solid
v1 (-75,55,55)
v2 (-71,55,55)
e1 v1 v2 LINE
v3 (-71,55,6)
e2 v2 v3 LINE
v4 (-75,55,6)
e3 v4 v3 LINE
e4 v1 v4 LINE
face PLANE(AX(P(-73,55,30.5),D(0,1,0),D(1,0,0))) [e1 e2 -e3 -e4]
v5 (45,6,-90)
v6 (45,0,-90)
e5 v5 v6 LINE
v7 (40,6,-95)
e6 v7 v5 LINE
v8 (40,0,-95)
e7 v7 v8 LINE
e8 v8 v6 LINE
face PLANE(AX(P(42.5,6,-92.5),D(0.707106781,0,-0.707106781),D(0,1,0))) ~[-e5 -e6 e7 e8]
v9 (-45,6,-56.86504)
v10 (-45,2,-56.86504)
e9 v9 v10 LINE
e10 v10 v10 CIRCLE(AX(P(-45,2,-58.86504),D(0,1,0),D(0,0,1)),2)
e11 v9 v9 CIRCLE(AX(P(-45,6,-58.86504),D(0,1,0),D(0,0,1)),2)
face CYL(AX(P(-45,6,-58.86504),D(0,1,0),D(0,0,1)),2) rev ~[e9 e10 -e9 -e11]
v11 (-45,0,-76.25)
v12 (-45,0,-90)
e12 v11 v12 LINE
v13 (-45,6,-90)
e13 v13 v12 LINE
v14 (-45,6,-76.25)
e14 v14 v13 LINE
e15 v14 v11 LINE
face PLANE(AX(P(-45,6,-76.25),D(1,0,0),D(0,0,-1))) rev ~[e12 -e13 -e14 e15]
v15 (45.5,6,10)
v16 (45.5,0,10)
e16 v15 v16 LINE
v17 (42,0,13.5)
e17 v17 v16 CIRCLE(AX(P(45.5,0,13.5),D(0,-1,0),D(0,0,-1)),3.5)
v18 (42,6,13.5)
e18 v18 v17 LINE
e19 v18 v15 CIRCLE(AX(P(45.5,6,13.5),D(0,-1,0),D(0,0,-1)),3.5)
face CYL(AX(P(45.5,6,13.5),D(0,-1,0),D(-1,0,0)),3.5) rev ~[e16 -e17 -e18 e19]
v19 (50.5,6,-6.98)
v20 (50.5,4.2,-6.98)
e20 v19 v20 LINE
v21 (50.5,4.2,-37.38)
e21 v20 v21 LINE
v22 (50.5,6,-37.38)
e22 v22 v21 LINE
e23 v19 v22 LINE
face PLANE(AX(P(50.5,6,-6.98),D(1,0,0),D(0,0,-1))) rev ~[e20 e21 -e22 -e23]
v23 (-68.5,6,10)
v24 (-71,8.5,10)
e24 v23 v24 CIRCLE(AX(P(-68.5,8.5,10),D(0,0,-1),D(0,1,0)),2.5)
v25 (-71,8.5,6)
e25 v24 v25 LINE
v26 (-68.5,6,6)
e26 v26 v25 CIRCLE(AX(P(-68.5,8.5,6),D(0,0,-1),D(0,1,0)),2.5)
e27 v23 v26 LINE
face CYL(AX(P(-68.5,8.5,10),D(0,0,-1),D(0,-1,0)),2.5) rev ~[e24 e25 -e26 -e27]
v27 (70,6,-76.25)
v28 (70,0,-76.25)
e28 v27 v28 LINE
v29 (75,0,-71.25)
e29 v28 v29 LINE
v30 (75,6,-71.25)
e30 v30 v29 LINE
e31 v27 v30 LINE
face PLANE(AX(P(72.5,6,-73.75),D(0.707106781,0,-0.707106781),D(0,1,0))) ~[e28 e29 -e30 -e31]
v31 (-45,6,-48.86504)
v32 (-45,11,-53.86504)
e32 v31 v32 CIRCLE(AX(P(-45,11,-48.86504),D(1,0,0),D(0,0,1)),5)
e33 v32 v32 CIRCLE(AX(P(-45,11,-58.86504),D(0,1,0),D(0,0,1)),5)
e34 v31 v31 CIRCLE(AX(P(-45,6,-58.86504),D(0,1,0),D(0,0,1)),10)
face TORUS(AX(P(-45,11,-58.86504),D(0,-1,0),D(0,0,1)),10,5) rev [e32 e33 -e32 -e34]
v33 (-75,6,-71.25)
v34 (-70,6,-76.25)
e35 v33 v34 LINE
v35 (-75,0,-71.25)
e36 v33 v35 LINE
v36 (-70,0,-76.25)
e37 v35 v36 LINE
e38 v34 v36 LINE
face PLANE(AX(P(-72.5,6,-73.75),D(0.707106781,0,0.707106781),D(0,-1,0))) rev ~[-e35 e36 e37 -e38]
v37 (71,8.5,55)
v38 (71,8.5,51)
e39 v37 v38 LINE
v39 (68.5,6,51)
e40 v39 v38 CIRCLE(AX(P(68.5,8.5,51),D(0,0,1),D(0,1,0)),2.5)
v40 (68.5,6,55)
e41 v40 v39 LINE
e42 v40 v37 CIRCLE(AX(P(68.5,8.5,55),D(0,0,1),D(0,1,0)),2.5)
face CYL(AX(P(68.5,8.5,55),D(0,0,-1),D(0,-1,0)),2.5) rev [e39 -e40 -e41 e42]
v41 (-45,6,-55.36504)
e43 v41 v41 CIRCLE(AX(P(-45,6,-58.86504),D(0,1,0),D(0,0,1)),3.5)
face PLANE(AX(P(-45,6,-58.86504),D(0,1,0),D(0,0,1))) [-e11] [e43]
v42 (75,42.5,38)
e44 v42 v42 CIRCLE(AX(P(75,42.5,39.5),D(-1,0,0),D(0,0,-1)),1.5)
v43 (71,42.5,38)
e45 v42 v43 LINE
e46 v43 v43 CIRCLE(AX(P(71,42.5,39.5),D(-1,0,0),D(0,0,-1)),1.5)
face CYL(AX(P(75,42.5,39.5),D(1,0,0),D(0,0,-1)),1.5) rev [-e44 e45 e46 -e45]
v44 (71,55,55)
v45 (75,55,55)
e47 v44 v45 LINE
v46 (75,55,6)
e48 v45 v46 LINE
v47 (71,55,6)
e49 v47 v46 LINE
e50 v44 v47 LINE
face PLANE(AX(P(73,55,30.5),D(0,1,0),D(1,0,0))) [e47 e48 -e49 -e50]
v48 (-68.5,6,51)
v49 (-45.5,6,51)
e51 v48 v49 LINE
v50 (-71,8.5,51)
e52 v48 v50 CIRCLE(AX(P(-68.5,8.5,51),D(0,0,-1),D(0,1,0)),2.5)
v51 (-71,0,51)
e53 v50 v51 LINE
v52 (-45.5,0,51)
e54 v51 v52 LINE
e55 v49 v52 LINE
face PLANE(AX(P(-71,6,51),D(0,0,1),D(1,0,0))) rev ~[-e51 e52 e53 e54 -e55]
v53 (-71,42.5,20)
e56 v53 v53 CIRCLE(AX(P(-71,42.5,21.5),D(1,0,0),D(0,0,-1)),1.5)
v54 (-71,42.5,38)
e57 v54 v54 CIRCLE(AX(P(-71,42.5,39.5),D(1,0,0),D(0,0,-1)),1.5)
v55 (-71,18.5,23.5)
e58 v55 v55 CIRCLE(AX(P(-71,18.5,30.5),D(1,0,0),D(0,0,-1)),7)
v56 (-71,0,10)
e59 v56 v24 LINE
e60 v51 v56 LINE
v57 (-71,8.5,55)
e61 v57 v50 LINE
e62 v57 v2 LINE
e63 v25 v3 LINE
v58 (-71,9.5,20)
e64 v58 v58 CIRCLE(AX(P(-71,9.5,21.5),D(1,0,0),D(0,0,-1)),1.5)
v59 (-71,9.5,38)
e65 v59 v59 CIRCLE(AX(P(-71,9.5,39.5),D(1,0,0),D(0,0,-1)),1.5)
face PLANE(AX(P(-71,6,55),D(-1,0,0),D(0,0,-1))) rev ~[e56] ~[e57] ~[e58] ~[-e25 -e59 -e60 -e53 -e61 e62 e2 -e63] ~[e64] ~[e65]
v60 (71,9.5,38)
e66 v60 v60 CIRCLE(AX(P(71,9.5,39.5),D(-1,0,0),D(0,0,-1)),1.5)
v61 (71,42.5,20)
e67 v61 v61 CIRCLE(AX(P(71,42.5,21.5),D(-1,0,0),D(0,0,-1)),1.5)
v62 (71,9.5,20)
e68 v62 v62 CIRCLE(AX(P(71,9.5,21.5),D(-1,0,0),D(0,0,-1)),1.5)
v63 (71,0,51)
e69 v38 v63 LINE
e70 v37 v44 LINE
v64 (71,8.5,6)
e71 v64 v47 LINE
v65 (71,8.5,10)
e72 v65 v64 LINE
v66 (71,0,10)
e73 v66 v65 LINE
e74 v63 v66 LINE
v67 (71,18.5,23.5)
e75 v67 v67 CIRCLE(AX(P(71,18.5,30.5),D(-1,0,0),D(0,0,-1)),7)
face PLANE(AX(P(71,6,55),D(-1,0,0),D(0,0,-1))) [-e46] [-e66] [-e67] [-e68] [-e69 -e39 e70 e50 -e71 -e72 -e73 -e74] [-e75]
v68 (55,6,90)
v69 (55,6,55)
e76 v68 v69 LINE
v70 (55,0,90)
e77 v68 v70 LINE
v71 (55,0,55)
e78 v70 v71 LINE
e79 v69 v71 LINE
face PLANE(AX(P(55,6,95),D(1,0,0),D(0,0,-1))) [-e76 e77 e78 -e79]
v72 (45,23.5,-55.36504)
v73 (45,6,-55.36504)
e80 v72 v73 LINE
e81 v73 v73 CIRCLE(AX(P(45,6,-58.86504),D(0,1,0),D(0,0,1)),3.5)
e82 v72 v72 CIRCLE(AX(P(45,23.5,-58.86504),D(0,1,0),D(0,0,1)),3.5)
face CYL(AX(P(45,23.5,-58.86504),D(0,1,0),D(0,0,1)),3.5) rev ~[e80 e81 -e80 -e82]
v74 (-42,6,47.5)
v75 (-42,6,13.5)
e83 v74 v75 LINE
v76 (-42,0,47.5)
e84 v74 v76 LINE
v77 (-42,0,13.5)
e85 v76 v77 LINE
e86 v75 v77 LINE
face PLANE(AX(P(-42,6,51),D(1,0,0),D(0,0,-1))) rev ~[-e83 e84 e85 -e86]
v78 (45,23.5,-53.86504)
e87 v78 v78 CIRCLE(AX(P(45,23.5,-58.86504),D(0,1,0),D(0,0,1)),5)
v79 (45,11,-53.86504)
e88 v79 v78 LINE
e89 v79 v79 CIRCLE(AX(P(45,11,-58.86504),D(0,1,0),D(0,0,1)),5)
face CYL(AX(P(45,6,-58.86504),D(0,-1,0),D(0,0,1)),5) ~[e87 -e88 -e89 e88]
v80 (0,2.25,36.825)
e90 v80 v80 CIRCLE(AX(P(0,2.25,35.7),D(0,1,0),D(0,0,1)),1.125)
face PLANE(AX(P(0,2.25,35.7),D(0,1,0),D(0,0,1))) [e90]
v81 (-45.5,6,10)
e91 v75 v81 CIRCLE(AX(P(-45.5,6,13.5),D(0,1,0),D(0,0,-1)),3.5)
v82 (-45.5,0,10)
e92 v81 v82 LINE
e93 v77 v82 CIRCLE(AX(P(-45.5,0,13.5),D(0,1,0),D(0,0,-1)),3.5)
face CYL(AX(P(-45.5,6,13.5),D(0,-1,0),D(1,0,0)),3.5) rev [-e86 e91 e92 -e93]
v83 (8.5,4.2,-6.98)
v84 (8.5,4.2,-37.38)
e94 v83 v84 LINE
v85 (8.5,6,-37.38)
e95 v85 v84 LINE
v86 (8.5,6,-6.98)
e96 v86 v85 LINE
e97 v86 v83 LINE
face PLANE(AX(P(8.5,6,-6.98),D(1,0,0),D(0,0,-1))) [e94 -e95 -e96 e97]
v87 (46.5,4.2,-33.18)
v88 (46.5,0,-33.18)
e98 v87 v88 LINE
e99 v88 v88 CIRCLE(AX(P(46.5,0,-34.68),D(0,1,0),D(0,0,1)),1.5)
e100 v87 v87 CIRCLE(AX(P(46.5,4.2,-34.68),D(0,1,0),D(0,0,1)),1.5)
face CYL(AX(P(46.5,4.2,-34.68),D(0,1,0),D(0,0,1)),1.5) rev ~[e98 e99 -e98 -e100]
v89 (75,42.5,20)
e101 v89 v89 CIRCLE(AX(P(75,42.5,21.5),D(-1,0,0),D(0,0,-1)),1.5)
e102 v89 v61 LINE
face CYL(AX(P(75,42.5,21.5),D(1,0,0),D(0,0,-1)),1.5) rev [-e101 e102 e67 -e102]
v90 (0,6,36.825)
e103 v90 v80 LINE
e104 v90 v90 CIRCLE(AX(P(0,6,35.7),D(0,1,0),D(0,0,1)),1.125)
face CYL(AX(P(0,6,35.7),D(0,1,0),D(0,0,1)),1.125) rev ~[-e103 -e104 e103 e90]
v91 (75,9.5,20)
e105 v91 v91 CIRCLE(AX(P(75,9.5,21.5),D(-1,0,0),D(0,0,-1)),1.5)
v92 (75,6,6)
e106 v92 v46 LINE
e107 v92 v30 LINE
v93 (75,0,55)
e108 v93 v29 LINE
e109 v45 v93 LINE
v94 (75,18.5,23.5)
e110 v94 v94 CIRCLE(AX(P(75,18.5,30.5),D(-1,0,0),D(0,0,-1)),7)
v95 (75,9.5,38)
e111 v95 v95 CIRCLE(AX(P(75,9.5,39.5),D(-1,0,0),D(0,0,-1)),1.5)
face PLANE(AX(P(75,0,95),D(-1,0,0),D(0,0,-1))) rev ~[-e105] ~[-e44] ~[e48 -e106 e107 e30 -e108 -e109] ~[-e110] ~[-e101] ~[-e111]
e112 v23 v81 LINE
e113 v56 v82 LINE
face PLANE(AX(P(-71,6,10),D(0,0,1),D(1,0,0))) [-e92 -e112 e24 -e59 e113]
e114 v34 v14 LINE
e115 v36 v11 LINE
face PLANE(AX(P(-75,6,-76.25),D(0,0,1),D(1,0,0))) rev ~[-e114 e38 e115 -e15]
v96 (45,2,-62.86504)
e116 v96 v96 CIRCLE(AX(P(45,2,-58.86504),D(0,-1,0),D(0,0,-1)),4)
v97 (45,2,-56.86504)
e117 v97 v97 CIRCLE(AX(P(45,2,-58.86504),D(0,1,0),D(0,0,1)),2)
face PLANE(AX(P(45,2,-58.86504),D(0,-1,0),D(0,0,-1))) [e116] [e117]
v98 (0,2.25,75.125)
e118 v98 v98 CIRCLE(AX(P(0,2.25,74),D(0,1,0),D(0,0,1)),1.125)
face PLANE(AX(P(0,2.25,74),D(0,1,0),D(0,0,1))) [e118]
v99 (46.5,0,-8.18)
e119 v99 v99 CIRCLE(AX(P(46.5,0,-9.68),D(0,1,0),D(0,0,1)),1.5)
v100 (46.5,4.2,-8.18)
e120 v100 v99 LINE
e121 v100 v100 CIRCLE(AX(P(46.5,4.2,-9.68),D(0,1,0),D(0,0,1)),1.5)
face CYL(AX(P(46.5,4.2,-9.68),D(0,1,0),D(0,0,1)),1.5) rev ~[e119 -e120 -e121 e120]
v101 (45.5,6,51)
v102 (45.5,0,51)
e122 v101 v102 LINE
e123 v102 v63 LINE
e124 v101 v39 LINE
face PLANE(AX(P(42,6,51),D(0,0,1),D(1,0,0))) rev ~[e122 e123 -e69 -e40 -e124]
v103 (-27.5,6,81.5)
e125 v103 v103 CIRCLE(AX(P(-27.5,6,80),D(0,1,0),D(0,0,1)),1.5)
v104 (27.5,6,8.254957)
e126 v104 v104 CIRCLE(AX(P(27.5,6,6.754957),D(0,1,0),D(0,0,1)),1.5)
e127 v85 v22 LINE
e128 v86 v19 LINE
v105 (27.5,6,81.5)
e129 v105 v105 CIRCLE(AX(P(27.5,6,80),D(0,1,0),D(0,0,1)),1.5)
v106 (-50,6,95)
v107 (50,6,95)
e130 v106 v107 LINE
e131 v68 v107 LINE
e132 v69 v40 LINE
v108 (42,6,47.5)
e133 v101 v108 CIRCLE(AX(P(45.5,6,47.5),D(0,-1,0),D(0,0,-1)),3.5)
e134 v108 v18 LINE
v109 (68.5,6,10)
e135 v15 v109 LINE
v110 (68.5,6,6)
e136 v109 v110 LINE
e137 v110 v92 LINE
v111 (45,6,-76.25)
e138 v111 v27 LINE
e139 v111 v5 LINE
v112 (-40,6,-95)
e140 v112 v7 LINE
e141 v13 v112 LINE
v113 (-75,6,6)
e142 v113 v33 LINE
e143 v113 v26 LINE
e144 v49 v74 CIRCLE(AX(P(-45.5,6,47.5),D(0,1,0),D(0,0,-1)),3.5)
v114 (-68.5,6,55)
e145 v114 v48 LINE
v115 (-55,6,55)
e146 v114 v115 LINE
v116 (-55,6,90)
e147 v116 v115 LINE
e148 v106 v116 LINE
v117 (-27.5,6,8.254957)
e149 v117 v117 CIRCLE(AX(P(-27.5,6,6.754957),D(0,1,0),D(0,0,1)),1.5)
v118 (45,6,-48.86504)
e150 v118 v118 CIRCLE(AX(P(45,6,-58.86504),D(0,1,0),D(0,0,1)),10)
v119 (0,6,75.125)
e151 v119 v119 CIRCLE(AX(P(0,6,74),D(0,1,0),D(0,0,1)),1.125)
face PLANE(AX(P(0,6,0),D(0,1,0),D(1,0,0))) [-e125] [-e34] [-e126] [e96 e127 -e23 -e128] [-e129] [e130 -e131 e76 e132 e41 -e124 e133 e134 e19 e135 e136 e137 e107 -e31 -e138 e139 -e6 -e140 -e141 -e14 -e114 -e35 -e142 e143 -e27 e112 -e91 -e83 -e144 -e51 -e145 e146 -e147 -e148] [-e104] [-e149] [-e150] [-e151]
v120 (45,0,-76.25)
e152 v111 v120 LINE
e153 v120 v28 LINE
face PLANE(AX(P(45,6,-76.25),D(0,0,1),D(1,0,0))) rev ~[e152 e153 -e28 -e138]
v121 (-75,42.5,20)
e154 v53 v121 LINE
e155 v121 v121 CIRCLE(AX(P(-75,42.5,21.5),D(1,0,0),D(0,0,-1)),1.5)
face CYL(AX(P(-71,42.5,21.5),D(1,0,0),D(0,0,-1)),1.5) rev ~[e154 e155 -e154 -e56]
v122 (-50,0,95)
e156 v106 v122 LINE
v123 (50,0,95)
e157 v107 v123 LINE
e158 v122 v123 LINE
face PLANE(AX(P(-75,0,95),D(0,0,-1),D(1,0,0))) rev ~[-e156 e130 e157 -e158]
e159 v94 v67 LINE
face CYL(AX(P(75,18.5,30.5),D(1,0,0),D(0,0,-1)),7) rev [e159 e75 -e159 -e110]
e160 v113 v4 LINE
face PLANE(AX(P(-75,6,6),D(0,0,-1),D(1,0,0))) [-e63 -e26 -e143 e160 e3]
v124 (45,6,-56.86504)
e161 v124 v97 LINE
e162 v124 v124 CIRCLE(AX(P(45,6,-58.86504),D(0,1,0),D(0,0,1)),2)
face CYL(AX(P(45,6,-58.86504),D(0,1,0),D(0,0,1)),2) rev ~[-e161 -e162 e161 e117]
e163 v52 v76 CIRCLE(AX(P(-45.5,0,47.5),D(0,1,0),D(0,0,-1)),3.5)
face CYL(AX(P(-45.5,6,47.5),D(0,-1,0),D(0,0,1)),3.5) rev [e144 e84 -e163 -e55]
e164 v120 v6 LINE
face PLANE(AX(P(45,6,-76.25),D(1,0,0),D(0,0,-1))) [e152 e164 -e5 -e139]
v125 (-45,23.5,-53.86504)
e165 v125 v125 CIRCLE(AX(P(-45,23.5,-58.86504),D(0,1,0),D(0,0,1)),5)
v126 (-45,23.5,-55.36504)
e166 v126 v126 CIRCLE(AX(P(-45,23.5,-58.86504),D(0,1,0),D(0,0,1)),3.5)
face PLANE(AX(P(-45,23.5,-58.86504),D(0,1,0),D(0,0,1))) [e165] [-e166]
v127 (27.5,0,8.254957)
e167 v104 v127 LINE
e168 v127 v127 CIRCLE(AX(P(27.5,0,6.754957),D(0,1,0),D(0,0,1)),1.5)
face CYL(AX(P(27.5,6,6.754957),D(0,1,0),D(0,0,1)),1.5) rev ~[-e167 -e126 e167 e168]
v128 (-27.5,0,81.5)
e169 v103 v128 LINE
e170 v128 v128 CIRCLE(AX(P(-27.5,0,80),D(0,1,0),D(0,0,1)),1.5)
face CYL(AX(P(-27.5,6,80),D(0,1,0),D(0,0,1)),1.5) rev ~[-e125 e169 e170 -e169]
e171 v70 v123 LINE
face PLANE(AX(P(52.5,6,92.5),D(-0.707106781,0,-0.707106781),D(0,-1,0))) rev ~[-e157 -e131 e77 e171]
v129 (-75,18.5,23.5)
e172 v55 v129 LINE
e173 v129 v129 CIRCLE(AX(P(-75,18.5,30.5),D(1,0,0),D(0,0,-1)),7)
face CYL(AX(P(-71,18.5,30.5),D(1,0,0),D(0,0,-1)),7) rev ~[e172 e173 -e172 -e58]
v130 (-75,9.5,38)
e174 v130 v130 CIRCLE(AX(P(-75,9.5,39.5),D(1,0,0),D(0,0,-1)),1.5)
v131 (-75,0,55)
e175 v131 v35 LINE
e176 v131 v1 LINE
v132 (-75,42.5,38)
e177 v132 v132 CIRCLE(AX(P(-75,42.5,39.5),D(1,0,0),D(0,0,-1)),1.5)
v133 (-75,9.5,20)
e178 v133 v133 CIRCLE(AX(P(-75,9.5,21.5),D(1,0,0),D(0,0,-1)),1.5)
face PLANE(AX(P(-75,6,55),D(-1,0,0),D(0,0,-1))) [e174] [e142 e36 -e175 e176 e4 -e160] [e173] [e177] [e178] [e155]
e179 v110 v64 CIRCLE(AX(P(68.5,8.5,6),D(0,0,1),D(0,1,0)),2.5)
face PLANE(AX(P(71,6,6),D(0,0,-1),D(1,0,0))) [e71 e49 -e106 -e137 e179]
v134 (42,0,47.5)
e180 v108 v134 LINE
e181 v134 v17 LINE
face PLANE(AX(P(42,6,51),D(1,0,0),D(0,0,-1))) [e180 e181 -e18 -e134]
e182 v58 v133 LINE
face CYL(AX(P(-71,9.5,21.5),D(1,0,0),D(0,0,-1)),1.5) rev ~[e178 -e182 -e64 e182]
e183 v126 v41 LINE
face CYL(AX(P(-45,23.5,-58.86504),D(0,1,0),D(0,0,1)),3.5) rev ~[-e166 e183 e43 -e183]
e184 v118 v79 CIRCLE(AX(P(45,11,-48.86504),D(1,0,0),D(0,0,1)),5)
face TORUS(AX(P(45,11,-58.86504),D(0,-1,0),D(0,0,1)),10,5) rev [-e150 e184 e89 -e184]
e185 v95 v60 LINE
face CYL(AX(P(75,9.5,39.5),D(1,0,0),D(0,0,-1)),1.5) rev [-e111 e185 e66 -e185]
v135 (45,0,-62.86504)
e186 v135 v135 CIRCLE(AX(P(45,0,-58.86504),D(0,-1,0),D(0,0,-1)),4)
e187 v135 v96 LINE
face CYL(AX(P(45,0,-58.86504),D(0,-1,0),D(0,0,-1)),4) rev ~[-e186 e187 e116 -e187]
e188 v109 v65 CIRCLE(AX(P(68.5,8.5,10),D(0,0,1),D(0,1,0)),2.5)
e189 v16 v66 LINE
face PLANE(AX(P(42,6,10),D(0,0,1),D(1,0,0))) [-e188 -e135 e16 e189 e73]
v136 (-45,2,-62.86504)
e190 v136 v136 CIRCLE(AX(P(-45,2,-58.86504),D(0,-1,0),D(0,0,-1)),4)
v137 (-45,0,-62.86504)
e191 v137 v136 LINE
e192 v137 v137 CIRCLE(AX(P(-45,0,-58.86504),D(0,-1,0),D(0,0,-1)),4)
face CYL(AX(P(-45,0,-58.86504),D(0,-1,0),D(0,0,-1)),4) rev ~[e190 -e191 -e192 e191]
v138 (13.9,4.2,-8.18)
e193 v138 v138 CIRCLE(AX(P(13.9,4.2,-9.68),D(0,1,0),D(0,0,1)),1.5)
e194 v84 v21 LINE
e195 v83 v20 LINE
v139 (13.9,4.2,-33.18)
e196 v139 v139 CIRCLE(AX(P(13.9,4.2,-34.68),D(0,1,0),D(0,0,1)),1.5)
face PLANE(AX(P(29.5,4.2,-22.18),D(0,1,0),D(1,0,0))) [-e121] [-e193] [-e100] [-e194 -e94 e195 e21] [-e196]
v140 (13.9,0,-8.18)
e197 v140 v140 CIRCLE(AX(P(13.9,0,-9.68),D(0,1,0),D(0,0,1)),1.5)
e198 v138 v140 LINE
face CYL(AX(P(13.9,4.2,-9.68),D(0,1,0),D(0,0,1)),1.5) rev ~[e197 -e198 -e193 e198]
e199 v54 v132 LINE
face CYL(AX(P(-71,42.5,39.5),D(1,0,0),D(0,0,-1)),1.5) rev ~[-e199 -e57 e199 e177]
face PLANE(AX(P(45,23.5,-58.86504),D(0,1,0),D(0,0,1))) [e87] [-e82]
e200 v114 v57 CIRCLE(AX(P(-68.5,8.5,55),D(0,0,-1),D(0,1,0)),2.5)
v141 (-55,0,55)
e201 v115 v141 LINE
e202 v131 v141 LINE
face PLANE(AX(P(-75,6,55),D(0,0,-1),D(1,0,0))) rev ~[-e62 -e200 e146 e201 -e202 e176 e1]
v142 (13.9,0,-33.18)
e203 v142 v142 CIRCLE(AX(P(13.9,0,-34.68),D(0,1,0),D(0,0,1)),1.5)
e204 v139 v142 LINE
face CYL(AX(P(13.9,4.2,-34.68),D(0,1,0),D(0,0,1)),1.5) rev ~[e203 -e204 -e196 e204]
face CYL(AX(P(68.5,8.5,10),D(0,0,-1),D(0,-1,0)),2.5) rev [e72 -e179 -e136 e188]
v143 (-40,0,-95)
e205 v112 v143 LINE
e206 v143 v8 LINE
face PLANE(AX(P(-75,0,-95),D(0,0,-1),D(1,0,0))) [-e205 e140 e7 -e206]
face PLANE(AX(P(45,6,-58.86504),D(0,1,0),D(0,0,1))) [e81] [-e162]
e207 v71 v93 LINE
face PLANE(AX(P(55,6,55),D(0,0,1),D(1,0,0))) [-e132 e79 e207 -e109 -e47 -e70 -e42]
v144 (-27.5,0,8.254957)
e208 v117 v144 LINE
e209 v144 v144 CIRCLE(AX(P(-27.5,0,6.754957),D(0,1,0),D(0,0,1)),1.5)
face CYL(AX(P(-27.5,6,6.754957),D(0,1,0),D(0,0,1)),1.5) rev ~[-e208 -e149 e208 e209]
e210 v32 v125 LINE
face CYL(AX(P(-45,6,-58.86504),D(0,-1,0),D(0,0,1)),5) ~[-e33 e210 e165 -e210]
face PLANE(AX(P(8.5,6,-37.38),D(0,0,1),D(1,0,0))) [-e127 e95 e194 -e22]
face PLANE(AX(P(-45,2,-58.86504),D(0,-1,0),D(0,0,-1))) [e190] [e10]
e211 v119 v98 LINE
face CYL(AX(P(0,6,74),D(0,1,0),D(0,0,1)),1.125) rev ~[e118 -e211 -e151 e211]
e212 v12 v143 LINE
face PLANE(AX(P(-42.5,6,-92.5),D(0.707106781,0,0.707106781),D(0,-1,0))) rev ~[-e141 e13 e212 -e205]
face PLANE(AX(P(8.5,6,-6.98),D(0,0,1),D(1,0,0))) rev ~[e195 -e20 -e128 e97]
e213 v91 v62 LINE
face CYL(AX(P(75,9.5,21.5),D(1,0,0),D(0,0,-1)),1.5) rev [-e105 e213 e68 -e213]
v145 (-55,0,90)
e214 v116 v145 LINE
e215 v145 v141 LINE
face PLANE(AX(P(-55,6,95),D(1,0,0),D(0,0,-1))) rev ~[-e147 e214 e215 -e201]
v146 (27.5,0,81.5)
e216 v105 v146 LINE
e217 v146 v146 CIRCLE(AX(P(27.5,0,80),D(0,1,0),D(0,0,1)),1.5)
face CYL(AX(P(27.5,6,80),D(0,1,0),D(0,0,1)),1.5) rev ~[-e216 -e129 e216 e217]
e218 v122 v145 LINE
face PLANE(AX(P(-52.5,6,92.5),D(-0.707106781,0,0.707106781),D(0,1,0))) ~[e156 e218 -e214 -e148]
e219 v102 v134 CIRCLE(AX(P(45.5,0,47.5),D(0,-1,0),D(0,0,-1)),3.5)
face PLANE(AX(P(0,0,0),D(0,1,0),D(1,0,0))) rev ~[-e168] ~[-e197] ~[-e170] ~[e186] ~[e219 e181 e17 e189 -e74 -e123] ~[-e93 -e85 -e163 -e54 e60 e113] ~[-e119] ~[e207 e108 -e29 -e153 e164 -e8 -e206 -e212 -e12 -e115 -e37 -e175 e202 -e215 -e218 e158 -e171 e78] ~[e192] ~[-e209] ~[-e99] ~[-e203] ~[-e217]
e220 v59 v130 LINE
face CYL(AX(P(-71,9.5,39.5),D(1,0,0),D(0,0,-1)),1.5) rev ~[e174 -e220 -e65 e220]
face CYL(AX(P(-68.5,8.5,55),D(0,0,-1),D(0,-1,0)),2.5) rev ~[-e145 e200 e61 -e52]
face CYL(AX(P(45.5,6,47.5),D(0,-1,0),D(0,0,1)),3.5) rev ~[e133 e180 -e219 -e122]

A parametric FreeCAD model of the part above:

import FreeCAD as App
import Part
import Sketcher
from FreeCAD import Vector


def edges_at(feature, points):
    """Names of the edges that pass closest to the given points."""
    edges = feature.Shape.Edges
    near = lambda p: min(range(len(edges)), key=lambda i: edges[i].distToShape(Part.Vertex(*p))[0])
    return sorted({f"Edge{near(p) + 1}" for p in points})

doc = App.newDocument("Part")
body = doc.addObject("PartDesign::Body", "Body")

# Sketch on XZ plane
sketch1 = body.newObject("Sketcher::SketchObject", "Sketch")
sketch1.AttachmentSupport = (doc.getObject("XZ_Plane"), [""])
sketch1.MapMode = "FlatFace"
sketch1.addGeometry(Part.LineSegment(Vector(-75, -95, 0), Vector(-75, 95, 0)), False)
sketch1.addGeometry(Part.LineSegment(Vector(-75, 95, 0), Vector(75, 95, 0)), False)
sketch1.addGeometry(Part.LineSegment(Vector(75, 95, 0), Vector(75, -95, 0)), False)
sketch1.addGeometry(Part.LineSegment(Vector(75, -95, 0), Vector(-75, -95, 0)), False)
sketch1.addConstraint(Sketcher.Constraint("Coincident", 0, 2, 1, 1))
sketch1.addConstraint(Sketcher.Constraint("Coincident", 1, 2, 2, 1))
sketch1.addConstraint(Sketcher.Constraint("Coincident", 2, 2, 3, 1))
sketch1.addConstraint(Sketcher.Constraint("Coincident", 3, 2, 0, 1))
sketch1.addConstraint(Sketcher.Constraint("Vertical", 0))
sketch1.addConstraint(Sketcher.Constraint("Horizontal", 1))
sketch1.addConstraint(Sketcher.Constraint("Vertical", 2))
sketch1.addConstraint(Sketcher.Constraint("Horizontal", 3))
sketch1.addConstraint(Sketcher.Constraint("Symmetric", 0, 2, 2, 2, -1, 1))
sketch1.addConstraint(Sketcher.Constraint("DistanceX", 1, 1, 1, 2, 150.0))
sketch1.addConstraint(Sketcher.Constraint("DistanceY", 0, 1, 0, 2, 190.0))
pad1 = body.newObject("PartDesign::Pad", "Pad")
pad1.Profile = sketch1
pad1.Length = 6
pad1.Reversed = True

# Sketch on XZ plane
sketch2 = body.newObject("Sketcher::SketchObject", "Sketch001")
sketch2.AttachmentSupport = (doc.getObject("XZ_Plane"), [""])
sketch2.MapMode = "FlatFace"
sketch2.AttachmentOffset = App.Placement(Vector(0, 0, -6), App.Rotation())
sketch2.addGeometry(Part.LineSegment(Vector(-75, -95, 0), Vector(-75, -76.25, 0)), False)
sketch2.addGeometry(Part.LineSegment(Vector(-75, -76.25, 0), Vector(-45, -76.25, 0)), False)
sketch2.addGeometry(Part.LineSegment(Vector(-45, -76.25, 0), Vector(-45, -95, 0)), False)
sketch2.addGeometry(Part.LineSegment(Vector(-45, -95, 0), Vector(-75, -95, 0)), False)
sketch2.addGeometry(Part.LineSegment(Vector(45, -95, 0), Vector(45, -76.25, 0)), False)
sketch2.addGeometry(Part.LineSegment(Vector(45, -76.25, 0), Vector(75, -76.25, 0)), False)
sketch2.addGeometry(Part.LineSegment(Vector(75, -76.25, 0), Vector(75, -95, 0)), False)
sketch2.addGeometry(Part.LineSegment(Vector(75, -95, 0), Vector(45, -95, 0)), False)
sketch2.addConstraint(Sketcher.Constraint("Coincident", 0, 2, 1, 1))
sketch2.addConstraint(Sketcher.Constraint("Coincident", 1, 2, 2, 1))
sketch2.addConstraint(Sketcher.Constraint("Coincident", 2, 2, 3, 1))
sketch2.addConstraint(Sketcher.Constraint("Coincident", 3, 2, 0, 1))
sketch2.addConstraint(Sketcher.Constraint("Coincident", 4, 2, 5, 1))
sketch2.addConstraint(Sketcher.Constraint("Coincident", 5, 2, 6, 1))
sketch2.addConstraint(Sketcher.Constraint("Coincident", 6, 2, 7, 1))
sketch2.addConstraint(Sketcher.Constraint("Coincident", 7, 2, 4, 1))
sketch2.addConstraint(Sketcher.Constraint("Vertical", 0))
sketch2.addConstraint(Sketcher.Constraint("Horizontal", 1))
sketch2.addConstraint(Sketcher.Constraint("Vertical", 2))
sketch2.addConstraint(Sketcher.Constraint("Horizontal", 3))
sketch2.addConstraint(Sketcher.Constraint("Vertical", 4))
sketch2.addConstraint(Sketcher.Constraint("Horizontal", 5))
sketch2.addConstraint(Sketcher.Constraint("Vertical", 6))
sketch2.addConstraint(Sketcher.Constraint("Horizontal", 7))
sketch2.addConstraint(Sketcher.Constraint("Symmetric", 1, 2, 4, 2, -2))
sketch2.addConstraint(Sketcher.Constraint("Symmetric", 3, 2, 6, 2, -2))
sketch2.addConstraint(Sketcher.Constraint("DistanceX", 1, 1, 1, 2, 30.0))
sketch2.addConstraint(Sketcher.Constraint("DistanceX", 0, 2, -1, 1, 75.0))
sketch2.addConstraint(Sketcher.Constraint("DistanceY", 2, 2, -1, 1, 95.0))
sketch2.addConstraint(Sketcher.Constraint("DistanceY", 0, 1, 0, 2, 18.75))
pocket1 = body.newObject("PartDesign::Pocket", "Pocket")
pocket1.Profile = sketch2
pocket1.Length = 6
pocket1.Reversed = True
doc.recompute()

chamfer = body.newObject("PartDesign::Chamfer", "Chamfer")
chamfer.Base = (pocket1, edges_at(pocket1, [
    (-75, 3, -76.25),
    (-45, 3, -95),
    (75, 3, -76.25),
    (45, 3, -95),
]))
chamfer.Size = 5

# Sketch on XZ plane
sketch3 = body.newObject("Sketcher::SketchObject", "Sketch002")
sketch3.AttachmentSupport = (doc.getObject("XZ_Plane"), [""])
sketch3.MapMode = "FlatFace"
sketch3.AttachmentOffset = App.Placement(Vector(0, 0, -6), App.Rotation())
sketch3.addGeometry(Part.LineSegment(Vector(-75, 55, 0), Vector(-75, 95, 0)), False)
sketch3.addGeometry(Part.LineSegment(Vector(-75, 95, 0), Vector(-55, 95, 0)), False)
sketch3.addGeometry(Part.LineSegment(Vector(-55, 95, 0), Vector(-55, 55, 0)), False)
sketch3.addGeometry(Part.LineSegment(Vector(-55, 55, 0), Vector(-75, 55, 0)), False)
sketch3.addGeometry(Part.LineSegment(Vector(55, 55, 0), Vector(55, 95, 0)), False)
sketch3.addGeometry(Part.LineSegment(Vector(55, 95, 0), Vector(75, 95, 0)), False)
sketch3.addGeometry(Part.LineSegment(Vector(75, 95, 0), Vector(75, 55, 0)), False)
sketch3.addGeometry(Part.LineSegment(Vector(75, 55, 0), Vector(55, 55, 0)), False)
sketch3.addConstraint(Sketcher.Constraint("Coincident", 0, 2, 1, 1))
sketch3.addConstraint(Sketcher.Constraint("Coincident", 1, 2, 2, 1))
sketch3.addConstraint(Sketcher.Constraint("Coincident", 2, 2, 3, 1))
sketch3.addConstraint(Sketcher.Constraint("Coincident", 3, 2, 0, 1))
sketch3.addConstraint(Sketcher.Constraint("Coincident", 4, 2, 5, 1))
sketch3.addConstraint(Sketcher.Constraint("Coincident", 5, 2, 6, 1))
sketch3.addConstraint(Sketcher.Constraint("Coincident", 6, 2, 7, 1))
sketch3.addConstraint(Sketcher.Constraint("Coincident", 7, 2, 4, 1))
sketch3.addConstraint(Sketcher.Constraint("Vertical", 0))
sketch3.addConstraint(Sketcher.Constraint("Horizontal", 1))
sketch3.addConstraint(Sketcher.Constraint("Vertical", 2))
sketch3.addConstraint(Sketcher.Constraint("Horizontal", 3))
sketch3.addConstraint(Sketcher.Constraint("Vertical", 4))
sketch3.addConstraint(Sketcher.Constraint("Horizontal", 5))
sketch3.addConstraint(Sketcher.Constraint("Vertical", 6))
sketch3.addConstraint(Sketcher.Constraint("Horizontal", 7))
sketch3.addConstraint(Sketcher.Constraint("Symmetric", 1, 2, 4, 2, -2))
sketch3.addConstraint(Sketcher.Constraint("Symmetric", 3, 2, 6, 2, -2))
sketch3.addConstraint(Sketcher.Constraint("DistanceX", 1, 1, 1, 2, 20.0))
sketch3.addConstraint(Sketcher.Constraint("DistanceY", 0, 1, 0, 2, 40.0))
sketch3.addConstraint(Sketcher.Constraint("DistanceX", 0, 2, -1, 1, 75.0))
sketch3.addConstraint(Sketcher.Constraint("DistanceY", -1, 1, 0, 2, 95.0))
pocket2 = body.newObject("PartDesign::Pocket", "Pocket001")
pocket2.Profile = sketch3
pocket2.Length = 6
pocket2.Reversed = True

# Sketch on XZ plane
sketch4 = body.newObject("Sketcher::SketchObject", "Sketch003")
sketch4.AttachmentSupport = (doc.getObject("XZ_Plane"), [""])
sketch4.MapMode = "FlatFace"
sketch4.AttachmentOffset = App.Placement(Vector(0, 0, -6), App.Rotation())
sketch4.addGeometry(Part.Circle(Vector(0, 74, 0), Vector(0, 0, 1), 1.125), False)
sketch4.addGeometry(Part.Circle(Vector(0, 35.7, 0), Vector(0, 0, 1), 1.125), False)
sketch4.addConstraint(Sketcher.Constraint("Equal", 0, 1))
sketch4.addConstraint(Sketcher.Constraint("PointOnObject", 0, 3, -2))
sketch4.addConstraint(Sketcher.Constraint("PointOnObject", 1, 3, -2))
sketch4.addConstraint(Sketcher.Constraint("Diameter", 0, 2.25))
sketch4.addConstraint(Sketcher.Constraint("DistanceY", -1, 1, 0, 3, 74.0))
sketch4.addConstraint(Sketcher.Constraint("DistanceY", -1, 1, 1, 3, 35.7))
pocket3 = body.newObject("PartDesign::Pocket", "Pocket002")
pocket3.Profile = sketch4
pocket3.Length = 3.75
pocket3.Reversed = True

# Sketch on XZ plane
sketch5 = body.newObject("Sketcher::SketchObject", "Sketch004")
sketch5.AttachmentSupport = (doc.getObject("XZ_Plane"), [""])
sketch5.MapMode = "FlatFace"
sketch5.AttachmentOffset = App.Placement(Vector(0, 0, -6), App.Rotation())
sketch5.addGeometry(Part.Circle(Vector(-45, -58.86504, 0), Vector(0, 0, 1), 5), False)
sketch5.addGeometry(Part.Circle(Vector(45, -58.86504, 0), Vector(0, 0, 1), 5), False)
sketch5.addConstraint(Sketcher.Constraint("Equal", 0, 1))
sketch5.addConstraint(Sketcher.Constraint("Symmetric", 0, 3, 1, 3, -2))
sketch5.addConstraint(Sketcher.Constraint("Diameter", 0, 10.0))
sketch5.addConstraint(Sketcher.Constraint("DistanceX", 0, 3, -1, 1, 45.0))
sketch5.addConstraint(Sketcher.Constraint("DistanceY", 0, 3, -1, 1, 58.86504))
pad2 = body.newObject("PartDesign::Pad", "Pad001")
pad2.Profile = sketch5
pad2.Length = 17.5
pad2.Reversed = True
doc.recompute()

fillet = body.newObject("PartDesign::Fillet", "Fillet")
fillet.Base = (pad2, edges_at(pad2, [(-45, 6, -63.865), (45, 6, -63.865)]))
fillet.Radius = 5

# Sketch on XZ plane
sketch6 = body.newObject("Sketcher::SketchObject", "Sketch005")
sketch6.AttachmentSupport = (doc.getObject("XZ_Plane"), [""])
sketch6.MapMode = "FlatFace"
sketch6.AttachmentOffset = App.Placement(Vector(0, 0, -23.5), App.Rotation())
sketch6.addGeometry(Part.Circle(Vector(-45, -58.86504, 0), Vector(0, 0, 1), 3.5), False)
sketch6.addConstraint(Sketcher.Constraint("Diameter", 0, 7.0))
sketch6.addConstraint(Sketcher.Constraint("DistanceX", 0, 3, -1, 1, 45.0))
sketch6.addConstraint(Sketcher.Constraint("DistanceY", 0, 3, -1, 1, 58.86504))
pocket4 = body.newObject("PartDesign::Pocket", "Pocket003")
pocket4.Profile = sketch6
pocket4.Length = 17.5
pocket4.Reversed = True

# Sketch on XZ plane
sketch7 = body.newObject("Sketcher::SketchObject", "Sketch006")
sketch7.AttachmentSupport = (doc.getObject("XZ_Plane"), [""])
sketch7.MapMode = "FlatFace"
sketch7.AttachmentOffset = App.Placement(Vector(0, 0, -23.5), App.Rotation())
sketch7.addGeometry(Part.Circle(Vector(45, -58.86504, 0), Vector(0, 0, 1), 3.5), False)
sketch7.addConstraint(Sketcher.Constraint("Diameter", 0, 7.0))
sketch7.addConstraint(Sketcher.Constraint("DistanceX", -1, 1, 0, 3, 45.0))
sketch7.addConstraint(Sketcher.Constraint("DistanceY", 0, 3, -1, 1, 58.86504))
pocket5 = body.newObject("PartDesign::Pocket", "Pocket004")
pocket5.Profile = sketch7
pocket5.Length = 17.5
pocket5.Reversed = True

# Sketch on XZ plane
sketch8 = body.newObject("Sketcher::SketchObject", "Sketch007")
sketch8.AttachmentSupport = (doc.getObject("XZ_Plane"), [""])
sketch8.MapMode = "FlatFace"
sketch8.AttachmentOffset = App.Placement(Vector(0, 0, -6), App.Rotation())
sketch8.addGeometry(Part.Circle(Vector(-45, -58.86504, 0), Vector(0, 0, 1), 2), False)
sketch8.addGeometry(Part.Circle(Vector(45, -58.86504, 0), Vector(0, 0, 1), 2), False)
sketch8.addConstraint(Sketcher.Constraint("Equal", 0, 1))
sketch8.addConstraint(Sketcher.Constraint("Symmetric", 0, 3, 1, 3, -2))
sketch8.addConstraint(Sketcher.Constraint("Diameter", 0, 4.0))
sketch8.addConstraint(Sketcher.Constraint("DistanceX", 0, 3, -1, 1, 45.0))
sketch8.addConstraint(Sketcher.Constraint("DistanceY", 0, 3, -1, 1, 58.86504))
pocket6 = body.newObject("PartDesign::Pocket", "Pocket005")
pocket6.Profile = sketch8
pocket6.Length = 6
pocket6.Reversed = True

# Sketch on XZ plane
sketch9 = body.newObject("Sketcher::SketchObject", "Sketch008")
sketch9.AttachmentSupport = (doc.getObject("XZ_Plane"), [""])
sketch9.MapMode = "FlatFace"
sketch9.AttachmentOffset = App.Placement(Vector(0, 0, -6), App.Rotation())
sketch9.addGeometry(Part.LineSegment(Vector(8.5, -37.38, 0), Vector(8.5, -6.98, 0)), False)
sketch9.addGeometry(Part.LineSegment(Vector(8.5, -6.98, 0), Vector(50.5, -6.98, 0)), False)
sketch9.addGeometry(Part.LineSegment(Vector(50.5, -6.98, 0), Vector(50.5, -37.38, 0)), False)
sketch9.addGeometry(Part.LineSegment(Vector(50.5, -37.38, 0), Vector(8.5, -37.38, 0)), False)
sketch9.addConstraint(Sketcher.Constraint("Coincident", 0, 2, 1, 1))
sketch9.addConstraint(Sketcher.Constraint("Coincident", 1, 2, 2, 1))
sketch9.addConstraint(Sketcher.Constraint("Coincident", 2, 2, 3, 1))
sketch9.addConstraint(Sketcher.Constraint("Coincident", 3, 2, 0, 1))
sketch9.addConstraint(Sketcher.Constraint("Vertical", 0))
sketch9.addConstraint(Sketcher.Constraint("Horizontal", 1))
sketch9.addConstraint(Sketcher.Constraint("Vertical", 2))
sketch9.addConstraint(Sketcher.Constraint("Horizontal", 3))
sketch9.addConstraint(Sketcher.Constraint("DistanceX", 1, 1, 1, 2, 42.0))
sketch9.addConstraint(Sketcher.Constraint("DistanceY", 0, 1, 0, 2, 30.4))
sketch9.addConstraint(Sketcher.Constraint("DistanceX", -1, 1, 0, 2, 8.5))
sketch9.addConstraint(Sketcher.Constraint("DistanceY", 0, 2, -1, 1, 6.98))
pocket7 = body.newObject("PartDesign::Pocket", "Pocket006")
pocket7.Profile = sketch9
pocket7.Length = 1.8
pocket7.Reversed = True

# Sketch on XZ plane
sketch10 = body.newObject("Sketcher::SketchObject", "Sketch009")
sketch10.AttachmentSupport = (doc.getObject("XZ_Plane"), [""])
sketch10.MapMode = "FlatFace"
sketch10.AttachmentOffset = App.Placement(Vector(0, 0, -4.2), App.Rotation())
sketch10.addGeometry(Part.Circle(Vector(13.9, -34.68, 0), Vector(0, 0, 1), 1.5), False)
sketch10.addGeometry(Part.Circle(Vector(46.5, -34.68, 0), Vector(0, 0, 1), 1.5), False)
sketch10.addGeometry(Part.Circle(Vector(46.5, -9.68, 0), Vector(0, 0, 1), 1.5), False)
sketch10.addGeometry(Part.Circle(Vector(13.9, -9.68, 0), Vector(0, 0, 1), 1.5), False)
sketch10.addConstraint(Sketcher.Constraint("Equal", 0, 1))
sketch10.addConstraint(Sketcher.Constraint("Equal", 1, 2))
sketch10.addConstraint(Sketcher.Constraint("Equal", 2, 3))
sketch10.addConstraint(Sketcher.Constraint("Horizontal", 0, 3, 1, 3))
sketch10.addConstraint(Sketcher.Constraint("Horizontal", 2, 3, 3, 3))
sketch10.addConstraint(Sketcher.Constraint("Vertical", 1, 3, 2, 3))
sketch10.addConstraint(Sketcher.Constraint("Vertical", 0, 3, 3, 3))
sketch10.addConstraint(Sketcher.Constraint("Diameter", 0, 3.0))
sketch10.addConstraint(Sketcher.Constraint("DistanceY", 1, 3, 2, 3, 25.0))
sketch10.addConstraint(Sketcher.Constraint("DistanceX", -1, 1, 0, 3, 13.9))
sketch10.addConstraint(Sketcher.Constraint("DistanceX", -1, 1, 1, 3, 46.5))
sketch10.addConstraint(Sketcher.Constraint("DistanceY", 0, 3, -1, 1, 34.68))
pocket8 = body.newObject("PartDesign::Pocket", "Pocket007")
pocket8.Profile = sketch10
pocket8.Length = 4.7
pocket8.Reversed = True

# Sketch on XZ plane
sketch11 = body.newObject("Sketcher::SketchObject", "Sketch010")
sketch11.AttachmentSupport = (doc.getObject("XZ_Plane"), [""])
sketch11.MapMode = "FlatFace"
sketch11.AttachmentOffset = App.Placement(Vector(0, 0, -6), App.Rotation())
sketch11.addGeometry(Part.LineSegment(Vector(-75, 6, 0), Vector(-75, 55, 0)), False)
sketch11.addGeometry(Part.LineSegment(Vector(-75, 55, 0), Vector(-71, 55, 0)), False)
sketch11.addGeometry(Part.LineSegment(Vector(-71, 55, 0), Vector(-71, 6, 0)), False)
sketch11.addGeometry(Part.LineSegment(Vector(-71, 6, 0), Vector(-75, 6, 0)), False)
sketch11.addGeometry(Part.LineSegment(Vector(71, 6, 0), Vector(71, 55, 0)), False)
sketch11.addGeometry(Part.LineSegment(Vector(71, 55, 0), Vector(75, 55, 0)), False)
sketch11.addGeometry(Part.LineSegment(Vector(75, 55, 0), Vector(75, 6, 0)), False)
sketch11.addGeometry(Part.LineSegment(Vector(75, 6, 0), Vector(71, 6, 0)), False)
sketch11.addConstraint(Sketcher.Constraint("Coincident", 0, 2, 1, 1))
sketch11.addConstraint(Sketcher.Constraint("Coincident", 1, 2, 2, 1))
sketch11.addConstraint(Sketcher.Constraint("Coincident", 2, 2, 3, 1))
sketch11.addConstraint(Sketcher.Constraint("Coincident", 3, 2, 0, 1))
sketch11.addConstraint(Sketcher.Constraint("Coincident", 4, 2, 5, 1))
sketch11.addConstraint(Sketcher.Constraint("Coincident", 5, 2, 6, 1))
sketch11.addConstraint(Sketcher.Constraint("Coincident", 6, 2, 7, 1))
sketch11.addConstraint(Sketcher.Constraint("Coincident", 7, 2, 4, 1))
sketch11.addConstraint(Sketcher.Constraint("Vertical", 0))
sketch11.addConstraint(Sketcher.Constraint("Horizontal", 1))
sketch11.addConstraint(Sketcher.Constraint("Vertical", 2))
sketch11.addConstraint(Sketcher.Constraint("Horizontal", 3))
sketch11.addConstraint(Sketcher.Constraint("Vertical", 4))
sketch11.addConstraint(Sketcher.Constraint("Horizontal", 5))
sketch11.addConstraint(Sketcher.Constraint("Vertical", 6))
sketch11.addConstraint(Sketcher.Constraint("Horizontal", 7))
sketch11.addConstraint(Sketcher.Constraint("Symmetric", 1, 2, 4, 2, -2))
sketch11.addConstraint(Sketcher.Constraint("Symmetric", 3, 2, 6, 2, -2))
sketch11.addConstraint(Sketcher.Constraint("DistanceX", 1, 1, 1, 2, 4.0))
sketch11.addConstraint(Sketcher.Constraint("DistanceY", 0, 1, 0, 2, 49.0))
sketch11.addConstraint(Sketcher.Constraint("DistanceX", 0, 2, -1, 1, 75.0))
sketch11.addConstraint(Sketcher.Constraint("DistanceY", -1, 1, 0, 2, 55.0))
pad3 = body.newObject("PartDesign::Pad", "Pad002")
pad3.Profile = sketch11
pad3.Length = 49
pad3.Reversed = True

# Sketch on YZ plane
sketch12 = body.newObject("Sketcher::SketchObject", "Sketch011")
sketch12.AttachmentSupport = (doc.getObject("YZ_Plane"), [""])
sketch12.MapMode = "FlatFace"
sketch12.AttachmentOffset = App.Placement(Vector(0, 0, -71), App.Rotation())
sketch12.addGeometry(Part.Circle(Vector(18.5, 30.5, 0), Vector(0, 0, 1), 7), False)
sketch12.addGeometry(Part.Circle(Vector(9.5, 39.5, 0), Vector(0, 0, 1), 1.5), False)
sketch12.addGeometry(Part.Circle(Vector(9.5, 21.5, 0), Vector(0, 0, 1), 1.5), False)
sketch12.addGeometry(Part.Circle(Vector(42.5, 39.5, 0), Vector(0, 0, 1), 1.5), False)
sketch12.addGeometry(Part.Circle(Vector(42.5, 21.5, 0), Vector(0, 0, 1), 1.5), False)
sketch12.addConstraint(Sketcher.Constraint("Equal", 1, 2))
sketch12.addConstraint(Sketcher.Constraint("Equal", 2, 3))
sketch12.addConstraint(Sketcher.Constraint("Equal", 3, 4))
sketch12.addConstraint(Sketcher.Constraint("Horizontal", 1, 3, 3, 3))
sketch12.addConstraint(Sketcher.Constraint("Horizontal", 2, 3, 4, 3))
sketch12.addConstraint(Sketcher.Constraint("Vertical", 1, 3, 2, 3))
sketch12.addConstraint(Sketcher.Constraint("Vertical", 3, 3, 4, 3))
sketch12.addConstraint(Sketcher.Constraint("Diameter", 0, 14.0))
sketch12.addConstraint(Sketcher.Constraint("Diameter", 1, 3.0))
sketch12.addConstraint(Sketcher.Constraint("DistanceX", 1, 3, 0, 3, 9.0))
sketch12.addConstraint(Sketcher.Constraint("DistanceY", 0, 3, 1, 3, 9.0))
sketch12.addConstraint(Sketcher.Constraint("DistanceY", 2, 3, 0, 3, 9.0))
sketch12.addConstraint(Sketcher.Constraint("DistanceX", 0, 3, 3, 3, 24.0))
sketch12.addConstraint(Sketcher.Constraint("DistanceX", -1, 1, 0, 3, 18.5))
sketch12.addConstraint(Sketcher.Constraint("DistanceY", -1, 1, 0, 3, 30.5))
pocket9 = body.newObject("PartDesign::Pocket", "Pocket008")
pocket9.Profile = sketch12
pocket9.Length = 4

# Sketch on XZ plane
sketch13 = body.newObject("Sketcher::SketchObject", "Sketch012")
sketch13.AttachmentSupport = (doc.getObject("XZ_Plane"), [""])
sketch13.MapMode = "FlatFace"
sketch13.AttachmentOffset = App.Placement(Vector(0, 0, -6), App.Rotation())
sketch13.addGeometry(Part.LineSegment(Vector(-71, 10, 0), Vector(-71, 51, 0)), False)
sketch13.addGeometry(Part.LineSegment(Vector(-71, 51, 0), Vector(-42, 51, 0)), False)
sketch13.addGeometry(Part.LineSegment(Vector(-42, 51, 0), Vector(-42, 10, 0)), False)
sketch13.addGeometry(Part.LineSegment(Vector(-42, 10, 0), Vector(-71, 10, 0)), False)
sketch13.addConstraint(Sketcher.Constraint("Coincident", 0, 2, 1, 1))
sketch13.addConstraint(Sketcher.Constraint("Coincident", 1, 2, 2, 1))
sketch13.addConstraint(Sketcher.Constraint("Coincident", 2, 2, 3, 1))
sketch13.addConstraint(Sketcher.Constraint("Coincident", 3, 2, 0, 1))
sketch13.addConstraint(Sketcher.Constraint("Vertical", 0))
sketch13.addConstraint(Sketcher.Constraint("Horizontal", 1))
sketch13.addConstraint(Sketcher.Constraint("Vertical", 2))
sketch13.addConstraint(Sketcher.Constraint("Horizontal", 3))
sketch13.addConstraint(Sketcher.Constraint("DistanceX", 1, 1, 1, 2, 29.0))
sketch13.addConstraint(Sketcher.Constraint("DistanceY", 0, 1, 0, 2, 41.0))
sketch13.addConstraint(Sketcher.Constraint("DistanceX", 0, 2, -1, 1, 71.0))
sketch13.addConstraint(Sketcher.Constraint("DistanceY", -1, 1, 0, 2, 51.0))
pocket10 = body.newObject("PartDesign::Pocket", "Pocket009")
pocket10.Profile = sketch13
pocket10.Length = 6.5
pocket10.Reversed = True
doc.recompute()

fillet2 = body.newObject("PartDesign::Fillet", "Fillet001")
fillet2.Base = (pocket10, edges_at(pocket10, [(-71, 6, 53), (-71, 6, 8)]))
fillet2.Radius = 2.5

# Sketch on YZ plane
sketch14 = body.newObject("Sketcher::SketchObject", "Sketch013")
sketch14.AttachmentSupport = (doc.getObject("YZ_Plane"), [""])
sketch14.MapMode = "FlatFace"
sketch14.AttachmentOffset = App.Placement(Vector(0, 0, 75), App.Rotation())
sketch14.addGeometry(Part.Circle(Vector(18.5, 30.5, 0), Vector(0, 0, 1), 7), False)
sketch14.addGeometry(Part.Circle(Vector(9.5, 21.5, 0), Vector(0, 0, 1), 1.5), False)
sketch14.addGeometry(Part.Circle(Vector(9.5, 39.5, 0), Vector(0, 0, 1), 1.5), False)
sketch14.addGeometry(Part.Circle(Vector(42.5, 21.5, 0), Vector(0, 0, 1), 1.5), False)
sketch14.addGeometry(Part.Circle(Vector(42.5, 39.5, 0), Vector(0, 0, 1), 1.5), False)
sketch14.addConstraint(Sketcher.Constraint("Equal", 1, 2))
sketch14.addConstraint(Sketcher.Constraint("Equal", 2, 3))
sketch14.addConstraint(Sketcher.Constraint("Equal", 3, 4))
sketch14.addConstraint(Sketcher.Constraint("Horizontal", 1, 3, 3, 3))
sketch14.addConstraint(Sketcher.Constraint("Horizontal", 2, 3, 4, 3))
sketch14.addConstraint(Sketcher.Constraint("Vertical", 1, 3, 2, 3))
sketch14.addConstraint(Sketcher.Constraint("Vertical", 3, 3, 4, 3))
sketch14.addConstraint(Sketcher.Constraint("Diameter", 0, 14.0))
sketch14.addConstraint(Sketcher.Constraint("Diameter", 1, 3.0))
sketch14.addConstraint(Sketcher.Constraint("DistanceX", 1, 3, 0, 3, 9.0))
sketch14.addConstraint(Sketcher.Constraint("DistanceY", 1, 3, 0, 3, 9.0))
sketch14.addConstraint(Sketcher.Constraint("DistanceY", 0, 3, 2, 3, 9.0))
sketch14.addConstraint(Sketcher.Constraint("DistanceX", 0, 3, 3, 3, 24.0))
sketch14.addConstraint(Sketcher.Constraint("DistanceX", -1, 1, 0, 3, 18.5))
sketch14.addConstraint(Sketcher.Constraint("DistanceY", -1, 1, 0, 3, 30.5))
pocket11 = body.newObject("PartDesign::Pocket", "Pocket010")
pocket11.Profile = sketch14
pocket11.Length = 4

# Sketch on XZ plane
sketch15 = body.newObject("Sketcher::SketchObject", "Sketch014")
sketch15.AttachmentSupport = (doc.getObject("XZ_Plane"), [""])
sketch15.MapMode = "FlatFace"
sketch15.AttachmentOffset = App.Placement(Vector(0, 0, -6), App.Rotation())
sketch15.addGeometry(Part.LineSegment(Vector(42, 10, 0), Vector(42, 51, 0)), False)
sketch15.addGeometry(Part.LineSegment(Vector(42, 51, 0), Vector(71, 51, 0)), False)
sketch15.addGeometry(Part.LineSegment(Vector(71, 51, 0), Vector(71, 10, 0)), False)
sketch15.addGeometry(Part.LineSegment(Vector(71, 10, 0), Vector(42, 10, 0)), False)
sketch15.addConstraint(Sketcher.Constraint("Coincident", 0, 2, 1, 1))
sketch15.addConstraint(Sketcher.Constraint("Coincident", 1, 2, 2, 1))
sketch15.addConstraint(Sketcher.Constraint("Coincident", 2, 2, 3, 1))
sketch15.addConstraint(Sketcher.Constraint("Coincident", 3, 2, 0, 1))
sketch15.addConstraint(Sketcher.Constraint("Vertical", 0))
sketch15.addConstraint(Sketcher.Constraint("Horizontal", 1))
sketch15.addConstraint(Sketcher.Constraint("Vertical", 2))
sketch15.addConstraint(Sketcher.Constraint("Horizontal", 3))
sketch15.addConstraint(Sketcher.Constraint("DistanceX", 1, 1, 1, 2, 29.0))
sketch15.addConstraint(Sketcher.Constraint("DistanceY", 0, 1, 0, 2, 41.0))
sketch15.addConstraint(Sketcher.Constraint("DistanceX", -1, 1, 0, 2, 42.0))
sketch15.addConstraint(Sketcher.Constraint("DistanceY", -1, 1, 0, 2, 51.0))
pocket12 = body.newObject("PartDesign::Pocket", "Pocket011")
pocket12.Profile = sketch15
pocket12.Length = 6
pocket12.Reversed = True
doc.recompute()

fillet3 = body.newObject("PartDesign::Fillet", "Fillet002")
fillet3.Base = (pocket12, edges_at(pocket12, [(71, 6, 8), (71, 6, 53)]))
fillet3.Radius = 2.5

# Sketch on XZ plane
sketch16 = body.newObject("Sketcher::SketchObject", "Sketch015")
sketch16.AttachmentSupport = (doc.getObject("XZ_Plane"), [""])
sketch16.MapMode = "FlatFace"
sketch16.AttachmentOffset = App.Placement(Vector(0, 0, -6), App.Rotation())
sketch16.addGeometry(Part.Circle(Vector(-27.5, 6.754957, 0), Vector(0, 0, 1), 1.5), False)
sketch16.addGeometry(Part.Circle(Vector(27.5, 6.754957, 0), Vector(0, 0, 1), 1.5), False)
sketch16.addGeometry(Part.Circle(Vector(-27.5, 80, 0), Vector(0, 0, 1), 1.5), False)
sketch16.addGeometry(Part.Circle(Vector(27.5, 80, 0), Vector(0, 0, 1), 1.5), False)
sketch16.addConstraint(Sketcher.Constraint("Equal", 0, 1))
sketch16.addConstraint(Sketcher.Constraint("Equal", 1, 2))
sketch16.addConstraint(Sketcher.Constraint("Equal", 2, 3))
sketch16.addConstraint(Sketcher.Constraint("Symmetric", 0, 3, 1, 3, -2))
sketch16.addConstraint(Sketcher.Constraint("Symmetric", 2, 3, 3, 3, -2))
sketch16.addConstraint(Sketcher.Constraint("Vertical", 0, 3, 2, 3))
sketch16.addConstraint(Sketcher.Constraint("Diameter", 0, 3.0))
sketch16.addConstraint(Sketcher.Constraint("DistanceY", -1, 1, 2, 3, 80.0))
sketch16.addConstraint(Sketcher.Constraint("DistanceX", 0, 3, 1, 3, 55.0))
sketch16.addConstraint(Sketcher.Constraint("DistanceY", -1, 1, 0, 3, 6.754957))
pocket13 = body.newObject("PartDesign::Pocket", "Pocket012")
pocket13.Profile = sketch16
pocket13.Length = 6
pocket13.Reversed = True

# Sketch on XZ plane
sketch17 = body.newObject("Sketcher::SketchObject", "Sketch016")
sketch17.AttachmentSupport = (doc.getObject("XZ_Plane"), [""])
sketch17.MapMode = "FlatFace"
sketch17.addGeometry(Part.Circle(Vector(45, -58.86504, 0), Vector(0, 0, 1), 4), False)
sketch17.addGeometry(Part.Circle(Vector(-45, -58.86504, 0), Vector(0, 0, 1), 4), False)
sketch17.addConstraint(Sketcher.Constraint("Equal", 0, 1))
sketch17.addConstraint(Sketcher.Constraint("Symmetric", 0, 3, 1, 3, -2))
sketch17.addConstraint(Sketcher.Constraint("Diameter", 0, 8.0))
sketch17.addConstraint(Sketcher.Constraint("DistanceX", -1, 1, 0, 3, 45.0))
sketch17.addConstraint(Sketcher.Constraint("DistanceY", 0, 3, -1, 1, 58.86504))
pocket14 = body.newObject("PartDesign::Pocket", "Pocket013")
pocket14.Profile = sketch17
pocket14.Length = 2
doc.recompute()

chamfer2 = body.newObject("PartDesign::Chamfer", "Chamfer001")
chamfer2.Base = (pocket14, edges_at(pocket14, [(-55, 3, 95), (55, 3, 95)]))
chamfer2.Size = 5
doc.recompute()

fillet4 = body.newObject("PartDesign::Fillet", "Fillet003")
fillet4.Base = (chamfer2, edges_at(chamfer2, [
    (-42, 3, 10),
    (-42, 3, 51),
    (42, 3, 51),
    (42, 3, 10),
]))
fillet4.Radius = 3.5

doc.recompute()
